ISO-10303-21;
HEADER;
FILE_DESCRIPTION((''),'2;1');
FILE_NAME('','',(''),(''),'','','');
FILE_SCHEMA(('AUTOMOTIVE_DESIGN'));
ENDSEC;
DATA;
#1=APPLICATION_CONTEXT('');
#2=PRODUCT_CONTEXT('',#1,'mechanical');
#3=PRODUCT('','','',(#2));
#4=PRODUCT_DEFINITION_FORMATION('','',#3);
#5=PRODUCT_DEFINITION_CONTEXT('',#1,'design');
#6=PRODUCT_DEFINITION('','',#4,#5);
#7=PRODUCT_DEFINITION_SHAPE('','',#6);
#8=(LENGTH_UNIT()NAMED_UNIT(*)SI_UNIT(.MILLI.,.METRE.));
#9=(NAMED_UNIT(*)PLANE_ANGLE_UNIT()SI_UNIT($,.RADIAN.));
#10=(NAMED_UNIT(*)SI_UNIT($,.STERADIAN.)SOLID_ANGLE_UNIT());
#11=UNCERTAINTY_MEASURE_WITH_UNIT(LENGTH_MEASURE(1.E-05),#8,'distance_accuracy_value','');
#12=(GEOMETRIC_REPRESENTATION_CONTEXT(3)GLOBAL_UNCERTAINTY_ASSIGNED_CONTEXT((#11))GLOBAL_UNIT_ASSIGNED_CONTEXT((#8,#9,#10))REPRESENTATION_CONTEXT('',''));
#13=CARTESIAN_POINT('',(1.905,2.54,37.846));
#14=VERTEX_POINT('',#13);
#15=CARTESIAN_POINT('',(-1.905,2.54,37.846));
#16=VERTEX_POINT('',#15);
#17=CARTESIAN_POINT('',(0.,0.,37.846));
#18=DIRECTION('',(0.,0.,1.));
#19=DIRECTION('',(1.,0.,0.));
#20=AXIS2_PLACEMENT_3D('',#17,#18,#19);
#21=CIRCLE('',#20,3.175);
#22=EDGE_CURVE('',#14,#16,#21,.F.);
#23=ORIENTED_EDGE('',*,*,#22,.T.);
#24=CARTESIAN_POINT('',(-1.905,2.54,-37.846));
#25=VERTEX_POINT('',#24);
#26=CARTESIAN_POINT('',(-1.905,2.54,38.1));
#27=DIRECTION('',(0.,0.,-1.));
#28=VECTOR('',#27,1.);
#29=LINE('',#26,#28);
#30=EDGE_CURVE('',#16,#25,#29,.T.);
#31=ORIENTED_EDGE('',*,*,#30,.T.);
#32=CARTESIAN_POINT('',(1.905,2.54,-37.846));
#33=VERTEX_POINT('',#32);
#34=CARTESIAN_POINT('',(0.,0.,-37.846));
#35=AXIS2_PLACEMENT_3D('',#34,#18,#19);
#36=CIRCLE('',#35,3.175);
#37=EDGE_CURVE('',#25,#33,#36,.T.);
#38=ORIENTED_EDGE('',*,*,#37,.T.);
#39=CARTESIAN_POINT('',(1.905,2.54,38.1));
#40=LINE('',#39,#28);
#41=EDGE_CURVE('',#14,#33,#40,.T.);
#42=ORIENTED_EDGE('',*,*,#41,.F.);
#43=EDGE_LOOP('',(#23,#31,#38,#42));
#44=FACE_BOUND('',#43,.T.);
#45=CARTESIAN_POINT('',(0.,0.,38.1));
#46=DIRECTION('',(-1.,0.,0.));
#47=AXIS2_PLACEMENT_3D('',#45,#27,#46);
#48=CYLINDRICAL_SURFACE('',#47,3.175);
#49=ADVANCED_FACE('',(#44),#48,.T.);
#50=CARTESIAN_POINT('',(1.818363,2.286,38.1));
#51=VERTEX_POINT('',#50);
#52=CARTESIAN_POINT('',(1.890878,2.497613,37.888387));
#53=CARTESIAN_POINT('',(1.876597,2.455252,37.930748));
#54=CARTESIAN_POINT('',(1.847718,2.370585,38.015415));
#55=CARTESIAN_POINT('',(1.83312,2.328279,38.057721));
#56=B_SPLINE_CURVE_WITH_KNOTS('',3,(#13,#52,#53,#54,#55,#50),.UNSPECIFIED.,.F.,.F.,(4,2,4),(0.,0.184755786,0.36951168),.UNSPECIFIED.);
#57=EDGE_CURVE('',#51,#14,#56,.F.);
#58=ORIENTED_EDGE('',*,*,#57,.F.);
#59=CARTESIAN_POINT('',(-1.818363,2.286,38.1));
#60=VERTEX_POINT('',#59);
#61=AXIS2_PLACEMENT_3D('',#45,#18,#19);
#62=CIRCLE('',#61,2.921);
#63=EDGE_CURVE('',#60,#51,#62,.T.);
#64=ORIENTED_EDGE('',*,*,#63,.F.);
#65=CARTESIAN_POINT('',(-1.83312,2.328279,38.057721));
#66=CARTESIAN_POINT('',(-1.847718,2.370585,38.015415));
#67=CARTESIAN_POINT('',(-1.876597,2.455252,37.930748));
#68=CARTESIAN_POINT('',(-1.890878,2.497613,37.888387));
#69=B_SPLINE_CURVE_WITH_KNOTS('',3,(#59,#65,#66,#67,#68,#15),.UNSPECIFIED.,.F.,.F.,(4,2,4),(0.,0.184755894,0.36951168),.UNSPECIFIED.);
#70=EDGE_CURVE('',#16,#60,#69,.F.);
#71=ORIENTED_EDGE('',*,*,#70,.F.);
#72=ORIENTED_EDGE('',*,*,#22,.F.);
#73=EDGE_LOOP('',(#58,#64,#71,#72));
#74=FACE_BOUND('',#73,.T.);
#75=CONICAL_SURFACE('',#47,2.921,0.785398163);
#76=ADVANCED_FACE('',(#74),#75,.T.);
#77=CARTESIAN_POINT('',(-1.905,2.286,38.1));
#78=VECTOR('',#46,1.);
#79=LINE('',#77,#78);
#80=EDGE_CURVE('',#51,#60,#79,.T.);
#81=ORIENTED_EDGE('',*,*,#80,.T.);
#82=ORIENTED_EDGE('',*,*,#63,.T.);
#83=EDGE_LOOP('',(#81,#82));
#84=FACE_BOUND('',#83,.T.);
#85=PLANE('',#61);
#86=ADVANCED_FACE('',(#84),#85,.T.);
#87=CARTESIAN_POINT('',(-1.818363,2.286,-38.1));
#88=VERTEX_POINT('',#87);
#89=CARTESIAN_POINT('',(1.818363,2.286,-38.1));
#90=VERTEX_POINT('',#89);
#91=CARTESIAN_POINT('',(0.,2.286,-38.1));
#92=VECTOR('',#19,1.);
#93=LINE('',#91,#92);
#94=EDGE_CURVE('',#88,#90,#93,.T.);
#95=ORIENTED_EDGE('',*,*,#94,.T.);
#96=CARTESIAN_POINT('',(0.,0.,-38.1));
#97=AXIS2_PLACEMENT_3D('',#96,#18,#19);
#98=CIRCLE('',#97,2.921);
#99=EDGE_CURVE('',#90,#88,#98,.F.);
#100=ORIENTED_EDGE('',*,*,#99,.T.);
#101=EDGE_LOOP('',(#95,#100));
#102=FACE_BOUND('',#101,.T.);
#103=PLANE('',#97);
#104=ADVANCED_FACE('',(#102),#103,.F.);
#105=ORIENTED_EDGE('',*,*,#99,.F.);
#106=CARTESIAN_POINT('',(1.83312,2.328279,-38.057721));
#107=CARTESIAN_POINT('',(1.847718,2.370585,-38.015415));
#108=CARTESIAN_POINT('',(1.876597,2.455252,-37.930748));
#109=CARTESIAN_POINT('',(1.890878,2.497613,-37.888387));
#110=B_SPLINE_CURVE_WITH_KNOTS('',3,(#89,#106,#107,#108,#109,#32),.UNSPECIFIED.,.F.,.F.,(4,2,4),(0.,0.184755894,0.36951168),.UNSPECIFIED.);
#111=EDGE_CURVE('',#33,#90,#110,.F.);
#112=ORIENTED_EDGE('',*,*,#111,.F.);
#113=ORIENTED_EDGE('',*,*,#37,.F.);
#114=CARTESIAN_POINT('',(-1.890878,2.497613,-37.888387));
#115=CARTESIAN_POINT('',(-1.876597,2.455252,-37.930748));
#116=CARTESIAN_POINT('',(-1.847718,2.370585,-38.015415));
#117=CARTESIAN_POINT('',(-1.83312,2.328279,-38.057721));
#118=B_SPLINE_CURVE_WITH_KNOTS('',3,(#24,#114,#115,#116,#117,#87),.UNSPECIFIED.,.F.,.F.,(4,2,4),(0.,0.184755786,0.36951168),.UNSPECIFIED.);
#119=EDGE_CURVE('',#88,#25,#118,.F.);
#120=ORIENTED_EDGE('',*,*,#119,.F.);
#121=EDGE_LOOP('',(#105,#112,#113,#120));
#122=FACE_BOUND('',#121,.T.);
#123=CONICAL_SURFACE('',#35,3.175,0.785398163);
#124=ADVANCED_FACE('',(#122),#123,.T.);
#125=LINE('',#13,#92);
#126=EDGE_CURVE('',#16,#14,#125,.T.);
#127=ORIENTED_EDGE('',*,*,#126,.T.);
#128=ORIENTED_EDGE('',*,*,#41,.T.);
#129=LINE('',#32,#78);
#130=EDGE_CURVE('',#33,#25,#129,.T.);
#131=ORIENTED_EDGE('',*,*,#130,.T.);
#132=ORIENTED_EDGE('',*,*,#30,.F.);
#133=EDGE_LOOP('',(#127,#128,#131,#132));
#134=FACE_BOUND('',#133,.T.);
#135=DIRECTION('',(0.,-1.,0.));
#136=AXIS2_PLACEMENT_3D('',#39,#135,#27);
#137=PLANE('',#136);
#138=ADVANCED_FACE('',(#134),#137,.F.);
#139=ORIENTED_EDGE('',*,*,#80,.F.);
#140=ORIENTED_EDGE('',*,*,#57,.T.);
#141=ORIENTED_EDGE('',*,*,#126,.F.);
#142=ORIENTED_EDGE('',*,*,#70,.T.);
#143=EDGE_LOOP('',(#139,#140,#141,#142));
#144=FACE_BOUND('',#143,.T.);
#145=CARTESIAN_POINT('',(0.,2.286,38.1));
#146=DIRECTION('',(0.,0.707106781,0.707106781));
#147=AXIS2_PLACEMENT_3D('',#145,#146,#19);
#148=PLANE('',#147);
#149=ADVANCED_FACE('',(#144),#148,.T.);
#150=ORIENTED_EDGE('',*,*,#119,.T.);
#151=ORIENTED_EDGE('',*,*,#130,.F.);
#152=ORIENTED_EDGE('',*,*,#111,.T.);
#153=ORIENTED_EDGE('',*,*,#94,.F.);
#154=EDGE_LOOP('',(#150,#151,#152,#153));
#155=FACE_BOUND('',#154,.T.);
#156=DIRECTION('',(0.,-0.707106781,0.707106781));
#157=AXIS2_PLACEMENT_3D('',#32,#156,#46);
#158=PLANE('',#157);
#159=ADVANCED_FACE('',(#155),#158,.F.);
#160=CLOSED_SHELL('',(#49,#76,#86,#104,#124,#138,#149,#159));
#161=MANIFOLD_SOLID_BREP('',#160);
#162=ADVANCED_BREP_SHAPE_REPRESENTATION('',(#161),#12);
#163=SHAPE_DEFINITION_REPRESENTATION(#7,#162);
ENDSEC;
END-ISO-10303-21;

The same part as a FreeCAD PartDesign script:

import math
import FreeCAD as App
import Part
import Sketcher
Q = App.Units.Quantity


def edges_at(feature, points):
    """Names of the edges that pass closest to the given points."""
    edges = feature.Shape.Edges
    near = lambda p: min(range(len(edges)), key=lambda i: edges[i].distToShape(Part.Vertex(*p))[0])
    return sorted({f"Edge{near(p) + 1}" for p in points})

doc = App.newDocument("Part")
params = doc.addObject("Spreadsheet::Sheet", "Params")
for row, (alias, value) in enumerate([
    ("sketch1_radius", "0.125 in"),
    ("sketch1_width", "0.15 in"),
    ("pad1_length", "3 in"),
    ("chamfer_size", "0.01 in"),
], start=1):
    params.set(f"A{row}", alias)
    params.set(f"B{row}", "=" + value)
    params.setAlias(f"B{row}", alias)

body = doc.addObject("PartDesign::Body", "Body")

# Sketch on XY plane
sketch1 = body.newObject("Sketcher::SketchObject", "Sketch")
sketch1.AttachmentSupport = (doc.getObject("XY_Plane"), [""])
sketch1.MapMode = "FlatFace"
sketch1.addGeometry([
    Part.LineSegment(App.Vector(1.9, 2.5, 0), App.Vector(-1.9, 2.5, 0)),
    Part.ArcOfCircle(Part.Circle(App.Vector(0, 0, 0), App.Vector(0, 0, 1), 3.2), math.radians(127), math.radians(413)),
], False)
sketch1.addConstraint([
    Sketcher.Constraint("Coincident", 0, 1, 1, 2),
    Sketcher.Constraint("Coincident", 1, 1, 0, 2),
    Sketcher.Constraint("Horizontal", 0),
    Sketcher.Constraint("Coincident", 1, 3, -1, 1),
    Sketcher.Constraint("Radius", 1, Q("0.125 in")),
    Sketcher.Constraint("DistanceX", 0, 2, 0, 1, Q("0.15 in")),
])
sketch1.setExpression("Constraints[4]", "Params.sketch1_radius")
sketch1.setExpression("Constraints[5]", "Params.sketch1_width")
pad1 = body.newObject("PartDesign::Pad", "Pad")
pad1.Profile = sketch1
pad1.setExpression("Length", "Params.pad1_length")
pad1.Midplane = True
doc.recompute()

chamfer = body.newObject("PartDesign::Chamfer", "Chamfer")
chamfer.Base = (pad1, edges_at(pad1, [
    (0, 2.54, -38.1),
    (0, -3.175, -38.1),
    (0, -3.175, 38.1),
    (0, 2.54, 38.1),
]))
chamfer.setExpression("Size", "Params.chamfer_size")

doc.recompute()
